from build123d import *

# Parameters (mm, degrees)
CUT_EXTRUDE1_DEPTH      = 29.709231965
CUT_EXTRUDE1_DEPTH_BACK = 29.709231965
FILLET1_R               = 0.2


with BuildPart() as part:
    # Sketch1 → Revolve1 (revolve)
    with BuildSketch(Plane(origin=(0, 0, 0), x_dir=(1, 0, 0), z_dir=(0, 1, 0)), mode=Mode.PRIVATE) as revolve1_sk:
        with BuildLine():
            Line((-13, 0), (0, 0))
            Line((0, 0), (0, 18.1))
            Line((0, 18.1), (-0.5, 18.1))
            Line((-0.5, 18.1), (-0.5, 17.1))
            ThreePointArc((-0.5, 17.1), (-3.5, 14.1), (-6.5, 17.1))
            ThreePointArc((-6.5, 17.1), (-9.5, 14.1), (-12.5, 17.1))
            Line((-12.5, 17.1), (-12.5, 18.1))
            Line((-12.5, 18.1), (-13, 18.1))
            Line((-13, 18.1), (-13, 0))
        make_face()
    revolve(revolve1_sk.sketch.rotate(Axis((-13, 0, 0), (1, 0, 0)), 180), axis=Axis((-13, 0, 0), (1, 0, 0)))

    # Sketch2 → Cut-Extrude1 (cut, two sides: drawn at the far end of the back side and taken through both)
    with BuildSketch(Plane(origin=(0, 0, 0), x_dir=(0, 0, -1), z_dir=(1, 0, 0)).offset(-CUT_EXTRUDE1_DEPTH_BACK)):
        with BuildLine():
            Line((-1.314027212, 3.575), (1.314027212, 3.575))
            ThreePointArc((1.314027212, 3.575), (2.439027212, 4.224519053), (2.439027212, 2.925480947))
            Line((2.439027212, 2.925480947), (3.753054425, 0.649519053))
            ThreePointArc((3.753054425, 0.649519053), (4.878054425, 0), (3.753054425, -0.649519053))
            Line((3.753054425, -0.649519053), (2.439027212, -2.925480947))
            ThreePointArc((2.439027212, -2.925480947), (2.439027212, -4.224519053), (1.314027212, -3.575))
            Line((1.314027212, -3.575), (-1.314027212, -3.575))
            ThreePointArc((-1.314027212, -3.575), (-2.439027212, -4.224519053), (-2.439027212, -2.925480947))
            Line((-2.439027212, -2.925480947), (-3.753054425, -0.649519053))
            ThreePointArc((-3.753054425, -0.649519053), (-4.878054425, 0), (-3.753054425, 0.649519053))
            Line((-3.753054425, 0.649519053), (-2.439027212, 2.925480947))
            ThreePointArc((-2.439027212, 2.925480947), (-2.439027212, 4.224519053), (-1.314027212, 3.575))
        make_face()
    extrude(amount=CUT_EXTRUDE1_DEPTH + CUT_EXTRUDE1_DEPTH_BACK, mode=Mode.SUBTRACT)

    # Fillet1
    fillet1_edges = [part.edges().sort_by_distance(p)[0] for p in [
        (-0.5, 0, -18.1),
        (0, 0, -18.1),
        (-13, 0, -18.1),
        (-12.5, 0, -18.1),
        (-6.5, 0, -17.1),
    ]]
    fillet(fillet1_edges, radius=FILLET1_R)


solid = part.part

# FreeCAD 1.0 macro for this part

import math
import FreeCAD as App
import Part
import Sketcher
from FreeCAD import Vector
Q = App.Units.Quantity


def edges_at(feature, points):
    """Names of the edges that pass closest to the given points."""
    edges = feature.Shape.Edges
    near = lambda p: min(range(len(edges)), key=lambda i: edges[i].distToShape(Part.Vertex(*p))[0])
    return sorted({f"Edge{near(p) + 1}" for p in points})

doc = App.newDocument("Part")
body = doc.addObject("PartDesign::Body", "Body")

sketch1 = body.newObject("Sketcher::SketchObject", "Sketch")
sketch1.AttachmentSupport = (doc.getObject("XZ_Plane"), [""])
sketch1.MapMode = "FlatFace"
sketch1.addGeometry([
    Part.LineSegment(Vector(-13, 0, 0), Vector(0, 0, 0)),
    Part.LineSegment(Vector(0, 0, 0), Vector(0, -18.1, 0)),
    Part.LineSegment(Vector(0, -18.1, 0), Vector(-0.5, -18.1, 0)),
    Part.LineSegment(Vector(-0.5, -18.1, 0), Vector(-0.5, -17.1, 0)),
    Part.ArcOfCircle(Part.Circle(Vector(-3.5, -17.1, 0), Vector(0, 0, 1), 3), math.radians(0), math.radians(180)),
    Part.ArcOfCircle(Part.Circle(Vector(-9.5, -17.1, 0), Vector(0, 0, 1), 3), math.radians(0), math.radians(180)),
    Part.LineSegment(Vector(-12.5, -17.1, 0), Vector(-12.5, -18.1, 0)),
    Part.LineSegment(Vector(-12.5, -18.1, 0), Vector(-13, -18.1, 0)),
    Part.LineSegment(Vector(-13, -18.1, 0), Vector(-13, 0, 0)),
], False)
sketch1.addConstraint([
    Sketcher.Constraint("Coincident", 0, 2, 1, 1),
    Sketcher.Constraint("Coincident", 1, 2, 2, 1),
    Sketcher.Constraint("Coincident", 2, 2, 3, 1),
    Sketcher.Constraint("Tangent", 3, 2, 4, 1),
    Sketcher.Constraint("Tangent", 4, 2, 5, 1),
    Sketcher.Constraint("Tangent", 5, 2, 6, 1),
    Sketcher.Constraint("Coincident", 6, 2, 7, 1),
    Sketcher.Constraint("Coincident", 7, 2, 8, 1),
    Sketcher.Constraint("Coincident", 8, 2, 0, 1),
    Sketcher.Constraint("Horizontal", 0),
    Sketcher.Constraint("Vertical", 1),
    Sketcher.Constraint("Horizontal", 2),
    Sketcher.Constraint("Vertical", 3),
    Sketcher.Constraint("Vertical", 6),
    Sketcher.Constraint("Horizontal", 7),
    Sketcher.Constraint("Vertical", 8),
    Sketcher.Constraint("Coincident", 0, 2, -1, 1),
    Sketcher.Constraint("Equal", 4, 5),
    Sketcher.Constraint("Horizontal", 4, 3, 5, 3),
    Sketcher.Constraint("Horizontal", 2, 2, 6, 2),
    Sketcher.Constraint("Equal", 2, 7),
    Sketcher.Constraint("Radius", 4, 3.0),
    Sketcher.Constraint("DistanceX", 0, 1, 0, 2, 13.0),
    Sketcher.Constraint("DistanceY", 3, 1, 3, 2, 1.0),
    Sketcher.Constraint("DistanceY", 1, 2, 1, 1, 18.1),
])
revolution = body.newObject("PartDesign::Revolution", "Revolution")
revolution.Profile = sketch1
revolution.ReferenceAxis = (sketch1, ["H_Axis"])
revolution.Angle = 360

sketch2 = body.newObject("Sketcher::SketchObject", "Sketch001")
sketch2.AttachmentSupport = (doc.getObject("YZ_Plane"), [""])
sketch2.MapMode = "FlatFace"
sketch2.addGeometry([
    Part.LineSegment(Vector(3.6, -1.3, 0), Vector(3.6, 1.3, 0)),
    Part.ArcOfCircle(Part.Circle(Vector(3.6, 2.1, 0), Vector(0, 0, 1), 0.8), math.radians(-90), math.radians(150)),
    Part.LineSegment(Vector(2.9, 2.4, 0), Vector(0.6, 3.8, 0)),
    Part.ArcOfCircle(Part.Circle(Vector(0, 4.1, 0), Vector(0, 0, 1), 0.8), math.radians(-30), math.radians(210)),
    Part.LineSegment(Vector(-0.6, 3.8, 0), Vector(-2.9, 2.4, 0)),
    Part.ArcOfCircle(Part.Circle(Vector(-3.6, 2.1, 0), Vector(0, 0, 1), 0.8), math.radians(30), math.radians(270)),
    Part.LineSegment(Vector(-3.6, 1.3, 0), Vector(-3.6, -1.3, 0)),
    Part.ArcOfCircle(Part.Circle(Vector(-3.6, -2.1, 0), Vector(0, 0, 1), 0.8), math.radians(90), math.radians(330)),
    Part.LineSegment(Vector(-2.9, -2.4, 0), Vector(-0.6, -3.8, 0)),
    Part.ArcOfCircle(Part.Circle(Vector(0, -4.1, 0), Vector(0, 0, 1), 0.8), math.radians(150), math.radians(390)),
    Part.LineSegment(Vector(0.6, -3.8, 0), Vector(2.9, -2.4, 0)),
    Part.ArcOfCircle(Part.Circle(Vector(3.6, -2.1, 0), Vector(0, 0, 1), 0.8), math.radians(-150), math.radians(90)),
], False)
sketch2.addConstraint([
    Sketcher.Constraint("Coincident", 0, 2, 1, 1),
    Sketcher.Constraint("Coincident", 1, 2, 2, 1),
    Sketcher.Constraint("Coincident", 2, 2, 3, 1),
    Sketcher.Constraint("Coincident", 3, 2, 4, 1),
    Sketcher.Constraint("Coincident", 4, 2, 5, 1),
    Sketcher.Constraint("Coincident", 5, 2, 6, 1),
    Sketcher.Constraint("Coincident", 6, 2, 7, 1),
    Sketcher.Constraint("Coincident", 7, 2, 8, 1),
    Sketcher.Constraint("Coincident", 8, 2, 9, 1),
    Sketcher.Constraint("Coincident", 9, 2, 10, 1),
    Sketcher.Constraint("Coincident", 10, 2, 11, 1),
    Sketcher.Constraint("Coincident", 11, 2, 0, 1),
    Sketcher.Constraint("Vertical", 0),
    Sketcher.Constraint("Vertical", 6),
    Sketcher.Constraint("Equal", 1, 3),
    Sketcher.Constraint("Equal", 3, 5),
    Sketcher.Constraint("Equal", 5, 7),
    Sketcher.Constraint("Equal", 7, 9),
    Sketcher.Constraint("Equal", 9, 11),
    Sketcher.Constraint("Symmetric", 1, 3, 7, 3, -1, 1),
    Sketcher.Constraint("Symmetric", 3, 3, 9, 3, -1, 1),
    Sketcher.Constraint("Symmetric", 5, 3, 11, 3, -1, 1),
    Sketcher.Constraint("Symmetric", 1, 3, 5, 3, -2),
    Sketcher.Constraint("Symmetric", 2, 2, 3, 2, -2),
    Sketcher.Constraint("Parallel", 2, 8),
    Sketcher.Constraint("Parallel", 4, 10),
    Sketcher.Constraint("Horizontal", 1, 2, 4, 2),
    Sketcher.Constraint("Horizontal", 8, 2, 9, 2),
    Sketcher.Constraint("Vertical", 11, 3, 0, 2),
    Sketcher.Constraint("Vertical", 7, 3, 5, 2),
    Sketcher.Constraint("Vertical", 4, 2, 7, 2),
    Sketcher.Constraint("Angle", 2, Q("150 deg")),
    Sketcher.Constraint("Radius", 1, 0.75),
    Sketcher.Constraint("DistanceX", 5, 3, 1, 3, 7.15),
    Sketcher.Constraint("DistanceY", 1, 3, 1, 2, 0.375),
    Sketcher.Constraint("DistanceY", 2, 2, 3, 3, 0.375),
    Sketcher.Constraint("DistanceY", 0, 1, 0, 2, 2.628054),
])
pocket1 = body.newObject("PartDesign::Pocket", "Pocket")
pocket1.Profile = sketch2
pocket1.Type = "ThroughAll"
pocket1.Midplane = True
doc.recompute()

fillet = body.newObject("PartDesign::Fillet", "Fillet")
fillet.Base = (pocket1, edges_at(pocket1, [
    (-0.5, 0, -18.1),
    (0, 0, -18.1),
    (-13, 0, -18.1),
    (-12.5, 0, -18.1),
    (-6.5, 0, -17.1),
]))
fillet.Radius = 0.2

doc.recompute()
